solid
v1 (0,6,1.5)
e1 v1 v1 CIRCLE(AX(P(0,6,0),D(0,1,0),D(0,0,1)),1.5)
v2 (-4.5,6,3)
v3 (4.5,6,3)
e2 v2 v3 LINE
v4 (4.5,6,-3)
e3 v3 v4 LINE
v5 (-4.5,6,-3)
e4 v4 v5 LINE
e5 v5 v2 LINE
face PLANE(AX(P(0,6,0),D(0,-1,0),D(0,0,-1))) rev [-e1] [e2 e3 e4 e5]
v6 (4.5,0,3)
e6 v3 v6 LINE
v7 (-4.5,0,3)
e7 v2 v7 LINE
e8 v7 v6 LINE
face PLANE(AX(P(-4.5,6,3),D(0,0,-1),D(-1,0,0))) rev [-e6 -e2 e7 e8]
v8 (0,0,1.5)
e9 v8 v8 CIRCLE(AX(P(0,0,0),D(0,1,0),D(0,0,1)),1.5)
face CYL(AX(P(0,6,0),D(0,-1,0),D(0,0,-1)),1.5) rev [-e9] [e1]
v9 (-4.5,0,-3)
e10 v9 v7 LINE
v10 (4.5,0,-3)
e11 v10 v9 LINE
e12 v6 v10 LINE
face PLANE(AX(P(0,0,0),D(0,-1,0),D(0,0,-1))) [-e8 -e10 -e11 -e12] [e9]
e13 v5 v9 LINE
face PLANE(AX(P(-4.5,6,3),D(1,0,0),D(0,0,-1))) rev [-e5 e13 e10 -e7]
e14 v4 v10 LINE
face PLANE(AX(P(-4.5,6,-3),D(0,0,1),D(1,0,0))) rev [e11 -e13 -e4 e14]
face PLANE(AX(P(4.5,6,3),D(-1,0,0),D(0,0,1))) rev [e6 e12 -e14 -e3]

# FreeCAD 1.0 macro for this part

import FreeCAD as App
import Part
import Sketcher

V = App.Vector
Q = App.Units.Quantity

doc = App.newDocument("Part")
params = doc.addObject("Spreadsheet::Sheet", "Params")
for row, (alias, value) in enumerate([
    ("sketch1_diameter", "3 mm"),
    ("sketch1_width", "9 mm"),
    ("sketch1_height", "6 mm"),
    ("pad1_length", "6 mm"),
], start=1):
    params.set(f"A{row}", alias)
    params.set(f"B{row}", "=" + value)
    params.setAlias(f"B{row}", alias)

body = doc.addObject("PartDesign::Body", "Body")

sketch1 = body.newObject("Sketcher::SketchObject", "Sketch")
sketch1.AttachmentSupport = (doc.getObject("XZ_Plane"), [""])
sketch1.MapMode = "FlatFace"
sketch1.addGeometry(Part.LineSegment(V(-4.5, -3, 0), V(-4.5, 3, 0)), False)
sketch1.addGeometry(Part.LineSegment(V(-4.5, 3, 0), V(4.5, 3, 0)), False)
sketch1.addGeometry(Part.LineSegment(V(4.5, 3, 0), V(4.5, -3, 0)), False)
sketch1.addGeometry(Part.LineSegment(V(4.5, -3, 0), V(-4.5, -3, 0)), False)
sketch1.addGeometry(Part.Circle(V(0, 0, 0), V(0, 0, 1), 1.5), False)
sketch1.addConstraint(Sketcher.Constraint("Coincident", 0, 2, 1, 1))
sketch1.addConstraint(Sketcher.Constraint("Coincident", 1, 2, 2, 1))
sketch1.addConstraint(Sketcher.Constraint("Coincident", 2, 2, 3, 1))
sketch1.addConstraint(Sketcher.Constraint("Coincident", 3, 2, 0, 1))
sketch1.addConstraint(Sketcher.Constraint("Vertical", 0))
sketch1.addConstraint(Sketcher.Constraint("Horizontal", 1))
sketch1.addConstraint(Sketcher.Constraint("Vertical", 2))
sketch1.addConstraint(Sketcher.Constraint("Horizontal", 3))
sketch1.addConstraint(Sketcher.Constraint("Coincident", 4, 3, -1, 1))
sketch1.addConstraint(Sketcher.Constraint("Symmetric", 0, 2, 2, 2, -1, 1))
sketch1.addConstraint(Sketcher.Constraint("Diameter", 4, Q("3 mm")))
sketch1.addConstraint(Sketcher.Constraint("DistanceX", 1, 1, 1, 2, Q("9 mm")))
sketch1.addConstraint(Sketcher.Constraint("DistanceY", 0, 1, 0, 2, Q("6 mm")))
sketch1.setExpression("Constraints[10]", "Params.sketch1_diameter")
sketch1.setExpression("Constraints[11]", "Params.sketch1_width")
sketch1.setExpression("Constraints[12]", "Params.sketch1_height")
pad1 = body.newObject("PartDesign::Pad", "Pad")
pad1.Profile = sketch1
pad1.setExpression("Length", "Params.pad1_length")
pad1.Reversed = True

doc.recompute()
